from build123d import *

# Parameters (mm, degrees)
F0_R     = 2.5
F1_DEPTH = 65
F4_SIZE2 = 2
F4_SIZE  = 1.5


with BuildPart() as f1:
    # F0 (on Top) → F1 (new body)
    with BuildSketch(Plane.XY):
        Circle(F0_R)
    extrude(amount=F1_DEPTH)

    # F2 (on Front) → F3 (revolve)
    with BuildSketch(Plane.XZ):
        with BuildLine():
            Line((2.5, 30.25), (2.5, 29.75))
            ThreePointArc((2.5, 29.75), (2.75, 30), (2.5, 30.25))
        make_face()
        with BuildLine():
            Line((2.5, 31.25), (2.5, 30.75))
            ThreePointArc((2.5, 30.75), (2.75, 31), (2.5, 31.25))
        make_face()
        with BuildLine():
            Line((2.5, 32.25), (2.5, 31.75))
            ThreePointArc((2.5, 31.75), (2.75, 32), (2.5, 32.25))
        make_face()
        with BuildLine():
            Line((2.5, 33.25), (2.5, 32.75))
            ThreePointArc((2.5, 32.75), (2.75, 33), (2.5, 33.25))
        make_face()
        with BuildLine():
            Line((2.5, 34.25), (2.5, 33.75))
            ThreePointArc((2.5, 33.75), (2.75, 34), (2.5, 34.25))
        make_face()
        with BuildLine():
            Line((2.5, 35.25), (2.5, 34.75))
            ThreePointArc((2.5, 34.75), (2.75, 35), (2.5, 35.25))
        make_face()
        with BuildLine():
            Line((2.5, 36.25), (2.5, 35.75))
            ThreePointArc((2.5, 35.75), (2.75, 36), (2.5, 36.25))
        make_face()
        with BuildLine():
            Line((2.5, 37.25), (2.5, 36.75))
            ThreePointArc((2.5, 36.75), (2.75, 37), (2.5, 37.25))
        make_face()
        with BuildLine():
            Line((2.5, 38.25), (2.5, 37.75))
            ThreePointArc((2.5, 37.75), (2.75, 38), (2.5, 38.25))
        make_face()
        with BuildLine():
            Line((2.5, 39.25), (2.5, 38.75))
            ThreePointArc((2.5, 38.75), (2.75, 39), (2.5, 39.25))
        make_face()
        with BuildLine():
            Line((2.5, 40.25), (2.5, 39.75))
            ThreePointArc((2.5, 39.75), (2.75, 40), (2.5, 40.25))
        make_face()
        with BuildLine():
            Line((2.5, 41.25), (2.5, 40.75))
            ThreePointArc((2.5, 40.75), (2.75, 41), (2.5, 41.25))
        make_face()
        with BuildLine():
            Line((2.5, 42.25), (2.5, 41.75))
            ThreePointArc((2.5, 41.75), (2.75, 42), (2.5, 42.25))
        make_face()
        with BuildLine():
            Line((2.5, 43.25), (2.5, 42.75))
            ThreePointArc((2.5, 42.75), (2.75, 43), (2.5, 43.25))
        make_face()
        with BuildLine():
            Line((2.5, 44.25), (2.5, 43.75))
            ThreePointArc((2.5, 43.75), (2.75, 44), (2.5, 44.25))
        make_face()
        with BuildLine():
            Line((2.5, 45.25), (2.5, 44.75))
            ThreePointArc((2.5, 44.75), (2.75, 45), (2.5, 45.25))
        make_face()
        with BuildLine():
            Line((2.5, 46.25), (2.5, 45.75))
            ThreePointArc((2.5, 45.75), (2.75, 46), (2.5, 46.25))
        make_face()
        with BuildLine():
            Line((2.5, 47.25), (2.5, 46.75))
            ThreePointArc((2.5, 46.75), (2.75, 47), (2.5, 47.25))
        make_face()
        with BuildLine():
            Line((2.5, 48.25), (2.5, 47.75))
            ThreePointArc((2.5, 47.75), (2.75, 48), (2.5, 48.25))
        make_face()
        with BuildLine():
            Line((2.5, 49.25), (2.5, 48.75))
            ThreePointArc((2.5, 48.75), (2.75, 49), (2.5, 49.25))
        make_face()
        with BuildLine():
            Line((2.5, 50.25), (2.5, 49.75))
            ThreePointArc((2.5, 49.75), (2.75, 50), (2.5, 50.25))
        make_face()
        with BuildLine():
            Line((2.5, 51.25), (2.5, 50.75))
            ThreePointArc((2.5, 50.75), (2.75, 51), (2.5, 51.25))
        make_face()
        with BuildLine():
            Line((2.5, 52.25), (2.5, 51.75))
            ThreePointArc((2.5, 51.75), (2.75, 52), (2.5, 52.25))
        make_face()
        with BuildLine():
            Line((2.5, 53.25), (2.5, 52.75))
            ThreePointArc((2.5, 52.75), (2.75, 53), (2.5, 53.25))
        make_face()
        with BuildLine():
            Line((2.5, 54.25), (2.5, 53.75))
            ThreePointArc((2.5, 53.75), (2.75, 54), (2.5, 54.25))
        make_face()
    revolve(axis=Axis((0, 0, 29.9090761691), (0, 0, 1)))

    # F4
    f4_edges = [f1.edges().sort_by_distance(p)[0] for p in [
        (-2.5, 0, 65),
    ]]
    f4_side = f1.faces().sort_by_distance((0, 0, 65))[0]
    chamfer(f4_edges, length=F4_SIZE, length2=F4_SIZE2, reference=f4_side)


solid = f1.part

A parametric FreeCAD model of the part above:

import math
import FreeCAD as App
import Part
import Sketcher
from FreeCAD import Vector
Q = App.Units.Quantity


def edges_at(feature, points):
    """Names of the edges that pass closest to the given points."""
    edges = feature.Shape.Edges
    near = lambda p: min(range(len(edges)), key=lambda i: edges[i].distToShape(Part.Vertex(*p))[0])
    return sorted({f"Edge{near(p) + 1}" for p in points})

doc = App.newDocument("Part")
body = doc.addObject("PartDesign::Body", "Body")

sketch1 = body.newObject("Sketcher::SketchObject", "Sketch")
sketch1.AttachmentSupport = (doc.getObject("XY_Plane"), [""])
sketch1.MapMode = "FlatFace"
sketch1.addGeometry(Part.Circle(Vector(0, 0, 0), Vector(0, 0, 1), 2.5), False)
sketch1.addConstraint([
    Sketcher.Constraint("Coincident", 0, 3, -1, 1),
    Sketcher.Constraint("Diameter", 0, Q("5 mm")),
])
pad1 = body.newObject("PartDesign::Pad", "Pad")
pad1.Profile = sketch1
pad1.Length = 65

sketch2 = body.newObject("Sketcher::SketchObject", "Sketch001")
sketch2.AttachmentSupport = (doc.getObject("XZ_Plane"), [""])
sketch2.MapMode = "FlatFace"
sketch2.addGeometry([
    Part.LineSegment(Vector(2.5, 30.25, 0), Vector(2.5, 29.75, 0)),
    Part.ArcOfCircle(Part.Circle(Vector(2.5, 30, 0), Vector(0, 0, 1), 0.25), math.radians(-90), math.radians(90)),
    Part.LineSegment(Vector(2.5, 31.25, 0), Vector(2.5, 30.75, 0)),
    Part.ArcOfCircle(Part.Circle(Vector(2.5, 31, 0), Vector(0, 0, 1), 0.25), math.radians(-90), math.radians(90)),
    Part.LineSegment(Vector(2.5, 32.25, 0), Vector(2.5, 31.75, 0)),
    Part.ArcOfCircle(Part.Circle(Vector(2.5, 32, 0), Vector(0, 0, 1), 0.25), math.radians(-90), math.radians(90)),
    Part.LineSegment(Vector(2.5, 33.25, 0), Vector(2.5, 32.75, 0)),
    Part.ArcOfCircle(Part.Circle(Vector(2.5, 33, 0), Vector(0, 0, 1), 0.25), math.radians(-90), math.radians(90)),
    Part.LineSegment(Vector(2.5, 34.25, 0), Vector(2.5, 33.75, 0)),
    Part.ArcOfCircle(Part.Circle(Vector(2.5, 34, 0), Vector(0, 0, 1), 0.25), math.radians(-90), math.radians(90)),
    Part.LineSegment(Vector(2.5, 35.25, 0), Vector(2.5, 34.75, 0)),
    Part.ArcOfCircle(Part.Circle(Vector(2.5, 35, 0), Vector(0, 0, 1), 0.25), math.radians(-90), math.radians(90)),
    Part.LineSegment(Vector(2.5, 36.25, 0), Vector(2.5, 35.75, 0)),
    Part.ArcOfCircle(Part.Circle(Vector(2.5, 36, 0), Vector(0, 0, 1), 0.25), math.radians(-90), math.radians(90)),
    Part.LineSegment(Vector(2.5, 37.25, 0), Vector(2.5, 36.75, 0)),
    Part.ArcOfCircle(Part.Circle(Vector(2.5, 37, 0), Vector(0, 0, 1), 0.25), math.radians(-90), math.radians(90)),
    Part.LineSegment(Vector(2.5, 38.25, 0), Vector(2.5, 37.75, 0)),
    Part.ArcOfCircle(Part.Circle(Vector(2.5, 38, 0), Vector(0, 0, 1), 0.25), math.radians(-90), math.radians(90)),
    Part.LineSegment(Vector(2.5, 39.25, 0), Vector(2.5, 38.75, 0)),
    Part.ArcOfCircle(Part.Circle(Vector(2.5, 39, 0), Vector(0, 0, 1), 0.25), math.radians(-90), math.radians(90)),
    Part.LineSegment(Vector(2.5, 40.25, 0), Vector(2.5, 39.75, 0)),
    Part.ArcOfCircle(Part.Circle(Vector(2.5, 40, 0), Vector(0, 0, 1), 0.25), math.radians(-90), math.radians(90)),
    Part.LineSegment(Vector(2.5, 41.25, 0), Vector(2.5, 40.75, 0)),
    Part.ArcOfCircle(Part.Circle(Vector(2.5, 41, 0), Vector(0, 0, 1), 0.25), math.radians(-90), math.radians(90)),
    Part.LineSegment(Vector(2.5, 42.25, 0), Vector(2.5, 41.75, 0)),
    Part.ArcOfCircle(Part.Circle(Vector(2.5, 42, 0), Vector(0, 0, 1), 0.25), math.radians(-90), math.radians(90)),
    Part.LineSegment(Vector(2.5, 43.25, 0), Vector(2.5, 42.75, 0)),
    Part.ArcOfCircle(Part.Circle(Vector(2.5, 43, 0), Vector(0, 0, 1), 0.25), math.radians(-90), math.radians(90)),
    Part.LineSegment(Vector(2.5, 44.25, 0), Vector(2.5, 43.75, 0)),
    Part.ArcOfCircle(Part.Circle(Vector(2.5, 44, 0), Vector(0, 0, 1), 0.25), math.radians(-90), math.radians(90)),
    Part.LineSegment(Vector(2.5, 45.25, 0), Vector(2.5, 44.75, 0)),
    Part.ArcOfCircle(Part.Circle(Vector(2.5, 45, 0), Vector(0, 0, 1), 0.25), math.radians(-90), math.radians(90)),
    Part.LineSegment(Vector(2.5, 46.25, 0), Vector(2.5, 45.75, 0)),
    Part.ArcOfCircle(Part.Circle(Vector(2.5, 46, 0), Vector(0, 0, 1), 0.25), math.radians(-90), math.radians(90)),
    Part.LineSegment(Vector(2.5, 47.25, 0), Vector(2.5, 46.75, 0)),
    Part.ArcOfCircle(Part.Circle(Vector(2.5, 47, 0), Vector(0, 0, 1), 0.25), math.radians(-90), math.radians(90)),
    Part.LineSegment(Vector(2.5, 48.25, 0), Vector(2.5, 47.75, 0)),
    Part.ArcOfCircle(Part.Circle(Vector(2.5, 48, 0), Vector(0, 0, 1), 0.25), math.radians(-90), math.radians(90)),
    Part.LineSegment(Vector(2.5, 49.25, 0), Vector(2.5, 48.75, 0)),
    Part.ArcOfCircle(Part.Circle(Vector(2.5, 49, 0), Vector(0, 0, 1), 0.25), math.radians(-90), math.radians(90)),
    Part.LineSegment(Vector(2.5, 50.25, 0), Vector(2.5, 49.75, 0)),
    Part.ArcOfCircle(Part.Circle(Vector(2.5, 50, 0), Vector(0, 0, 1), 0.25), math.radians(-90), math.radians(90)),
    Part.LineSegment(Vector(2.5, 51.25, 0), Vector(2.5, 50.75, 0)),
    Part.ArcOfCircle(Part.Circle(Vector(2.5, 51, 0), Vector(0, 0, 1), 0.25), math.radians(-90), math.radians(90)),
    Part.LineSegment(Vector(2.5, 52.25, 0), Vector(2.5, 51.75, 0)),
    Part.ArcOfCircle(Part.Circle(Vector(2.5, 52, 0), Vector(0, 0, 1), 0.25), math.radians(-90), math.radians(90)),
    Part.LineSegment(Vector(2.5, 53.25, 0), Vector(2.5, 52.75, 0)),
    Part.ArcOfCircle(Part.Circle(Vector(2.5, 53, 0), Vector(0, 0, 1), 0.25), math.radians(-90), math.radians(90)),
    Part.LineSegment(Vector(2.5, 54.25, 0), Vector(2.5, 53.75, 0)),
    Part.ArcOfCircle(Part.Circle(Vector(2.5, 54, 0), Vector(0, 0, 1), 0.25), math.radians(-90), math.radians(90)),
], False)
sketch2.addConstraint([
    Sketcher.Constraint("Coincident", 0, 1, 1, 2),
    Sketcher.Constraint("Coincident", 1, 1, 0, 2),
    Sketcher.Constraint("Coincident", 2, 1, 3, 2),
    Sketcher.Constraint("Coincident", 3, 1, 2, 2),
    Sketcher.Constraint("Coincident", 4, 1, 5, 2),
    Sketcher.Constraint("Coincident", 5, 1, 4, 2),
    Sketcher.Constraint("Coincident", 6, 1, 7, 2),
    Sketcher.Constraint("Coincident", 7, 1, 6, 2),
    Sketcher.Constraint("Coincident", 8, 1, 9, 2),
    Sketcher.Constraint("Coincident", 9, 1, 8, 2),
    Sketcher.Constraint("Coincident", 10, 1, 11, 2),
    Sketcher.Constraint("Coincident", 11, 1, 10, 2),
    Sketcher.Constraint("Coincident", 12, 1, 13, 2),
    Sketcher.Constraint("Coincident", 13, 1, 12, 2),
    Sketcher.Constraint("Coincident", 14, 1, 15, 2),
    Sketcher.Constraint("Coincident", 15, 1, 14, 2),
    Sketcher.Constraint("Coincident", 16, 1, 17, 2),
    Sketcher.Constraint("Coincident", 17, 1, 16, 2),
    Sketcher.Constraint("Coincident", 18, 1, 19, 2),
    Sketcher.Constraint("Coincident", 19, 1, 18, 2),
    Sketcher.Constraint("Coincident", 20, 1, 21, 2),
    Sketcher.Constraint("Coincident", 21, 1, 20, 2),
    Sketcher.Constraint("Coincident", 22, 1, 23, 2),
    Sketcher.Constraint("Coincident", 23, 1, 22, 2),
    Sketcher.Constraint("Coincident", 24, 1, 25, 2),
    Sketcher.Constraint("Coincident", 25, 1, 24, 2),
    Sketcher.Constraint("Coincident", 26, 1, 27, 2),
    Sketcher.Constraint("Coincident", 27, 1, 26, 2),
    Sketcher.Constraint("Coincident", 28, 1, 29, 2),
    Sketcher.Constraint("Coincident", 29, 1, 28, 2),
    Sketcher.Constraint("Coincident", 30, 1, 31, 2),
    Sketcher.Constraint("Coincident", 31, 1, 30, 2),
    Sketcher.Constraint("Coincident", 32, 1, 33, 2),
    Sketcher.Constraint("Coincident", 33, 1, 32, 2),
    Sketcher.Constraint("Coincident", 34, 1, 35, 2),
    Sketcher.Constraint("Coincident", 35, 1, 34, 2),
    Sketcher.Constraint("Coincident", 36, 1, 37, 2),
    Sketcher.Constraint("Coincident", 37, 1, 36, 2),
    Sketcher.Constraint("Coincident", 38, 1, 39, 2),
    Sketcher.Constraint("Coincident", 39, 1, 38, 2),
    Sketcher.Constraint("Coincident", 40, 1, 41, 2),
    Sketcher.Constraint("Coincident", 41, 1, 40, 2),
    Sketcher.Constraint("Coincident", 42, 1, 43, 2),
    Sketcher.Constraint("Coincident", 43, 1, 42, 2),
    Sketcher.Constraint("Coincident", 44, 1, 45, 2),
    Sketcher.Constraint("Coincident", 45, 1, 44, 2),
    Sketcher.Constraint("Coincident", 46, 1, 47, 2),
    Sketcher.Constraint("Coincident", 47, 1, 46, 2),
    Sketcher.Constraint("Coincident", 48, 1, 49, 2),
    Sketcher.Constraint("Coincident", 49, 1, 48, 2),
    Sketcher.Constraint("Vertical", 0),
    Sketcher.Constraint("Vertical", 2),
    Sketcher.Constraint("Vertical", 4),
    Sketcher.Constraint("Vertical", 6),
    Sketcher.Constraint("Vertical", 8),
    Sketcher.Constraint("Vertical", 10),
    Sketcher.Constraint("Vertical", 12),
    Sketcher.Constraint("Vertical", 14),
    Sketcher.Constraint("Vertical", 16),
    Sketcher.Constraint("Vertical", 18),
    Sketcher.Constraint("Vertical", 20),
    Sketcher.Constraint("Vertical", 22),
    Sketcher.Constraint("Vertical", 24),
    Sketcher.Constraint("Vertical", 26),
    Sketcher.Constraint("Vertical", 28),
    Sketcher.Constraint("Vertical", 30),
    Sketcher.Constraint("Vertical", 32),
    Sketcher.Constraint("Vertical", 34),
    Sketcher.Constraint("Vertical", 36),
    Sketcher.Constraint("Vertical", 38),
    Sketcher.Constraint("Vertical", 40),
    Sketcher.Constraint("Vertical", 42),
    Sketcher.Constraint("Vertical", 44),
    Sketcher.Constraint("Vertical", 46),
    Sketcher.Constraint("Vertical", 48),
    Sketcher.Constraint("Equal", 1, 3),
    Sketcher.Constraint("Equal", 3, 5),
    Sketcher.Constraint("Equal", 5, 7),
    Sketcher.Constraint("Equal", 7, 9),
    Sketcher.Constraint("Equal", 9, 11),
    Sketcher.Constraint("Equal", 11, 13),
    Sketcher.Constraint("Equal", 13, 15),
    Sketcher.Constraint("Equal", 15, 17),
    Sketcher.Constraint("Equal", 17, 19),
    Sketcher.Constraint("Equal", 19, 21),
    Sketcher.Constraint("Equal", 21, 23),
    Sketcher.Constraint("Equal", 23, 25),
    Sketcher.Constraint("Equal", 25, 27),
    Sketcher.Constraint("Equal", 27, 29),
    Sketcher.Constraint("Equal", 29, 31),
    Sketcher.Constraint("Equal", 31, 33),
    Sketcher.Constraint("Equal", 33, 35),
    Sketcher.Constraint("Equal", 35, 37),
    Sketcher.Constraint("Equal", 37, 39),
    Sketcher.Constraint("Equal", 39, 41),
    Sketcher.Constraint("Equal", 41, 43),
    Sketcher.Constraint("Equal", 43, 45),
    Sketcher.Constraint("Equal", 45, 47),
    Sketcher.Constraint("Equal", 47, 49),
    Sketcher.Constraint("Vertical", 1, 3, 3, 3),
    Sketcher.Constraint("Vertical", 3, 3, 5, 3),
    Sketcher.Constraint("Vertical", 5, 3, 7, 3),
    Sketcher.Constraint("Vertical", 7, 3, 9, 3),
    Sketcher.Constraint("Vertical", 9, 3, 11, 3),
    Sketcher.Constraint("Vertical", 11, 3, 13, 3),
    Sketcher.Constraint("Vertical", 13, 3, 15, 3),
    Sketcher.Constraint("Vertical", 15, 3, 17, 3),
    Sketcher.Constraint("Vertical", 17, 3, 19, 3),
    Sketcher.Constraint("Vertical", 19, 3, 21, 3),
    Sketcher.Constraint("Vertical", 21, 3, 23, 3),
    Sketcher.Constraint("Vertical", 23, 3, 25, 3),
    Sketcher.Constraint("Vertical", 25, 3, 27, 3),
    Sketcher.Constraint("Vertical", 27, 3, 29, 3),
    Sketcher.Constraint("Vertical", 29, 3, 31, 3),
    Sketcher.Constraint("Vertical", 31, 3, 33, 3),
    Sketcher.Constraint("Vertical", 33, 3, 35, 3),
    Sketcher.Constraint("Vertical", 35, 3, 37, 3),
    Sketcher.Constraint("Vertical", 37, 3, 39, 3),
    Sketcher.Constraint("Vertical", 39, 3, 41, 3),
    Sketcher.Constraint("Vertical", 41, 3, 43, 3),
    Sketcher.Constraint("Vertical", 43, 3, 45, 3),
    Sketcher.Constraint("Vertical", 45, 3, 47, 3),
    Sketcher.Constraint("Vertical", 47, 3, 49, 3),
    Sketcher.Constraint("Vertical", 49, 3, 0, 1),
    Sketcher.Constraint("Vertical", 1, 1, 2, 1),
    Sketcher.Constraint("Vertical", 3, 1, 4, 1),
    Sketcher.Constraint("Vertical", 5, 1, 6, 1),
    Sketcher.Constraint("Vertical", 7, 1, 8, 1),
    Sketcher.Constraint("Vertical", 9, 1, 10, 1),
    Sketcher.Constraint("Vertical", 11, 1, 12, 1),
    Sketcher.Constraint("Vertical", 13, 1, 14, 1),
    Sketcher.Constraint("Vertical", 15, 1, 16, 1),
    Sketcher.Constraint("Vertical", 17, 1, 18, 1),
    Sketcher.Constraint("Vertical", 19, 1, 20, 1),
    Sketcher.Constraint("Vertical", 21, 1, 22, 1),
    Sketcher.Constraint("Vertical", 23, 1, 24, 1),
    Sketcher.Constraint("Vertical", 25, 1, 26, 1),
    Sketcher.Constraint("Vertical", 27, 1, 28, 1),
    Sketcher.Constraint("Vertical", 29, 1, 30, 1),
    Sketcher.Constraint("Vertical", 31, 1, 32, 1),
    Sketcher.Constraint("Vertical", 33, 1, 34, 1),
    Sketcher.Constraint("Vertical", 35, 1, 36, 1),
    Sketcher.Constraint("Vertical", 37, 1, 38, 1),
    Sketcher.Constraint("Vertical", 39, 1, 40, 1),
    Sketcher.Constraint("Vertical", 41, 1, 42, 1),
    Sketcher.Constraint("Vertical", 43, 1, 44, 1),
    Sketcher.Constraint("Vertical", 45, 1, 46, 1),
    Sketcher.Constraint("Vertical", 47, 1, 48, 1),
    Sketcher.Constraint("Radius", 1, Q("0.25 mm")),
    Sketcher.Constraint("DistanceY", -1, 1, 1, 3, Q("30 mm")),
    Sketcher.Constraint("DistanceY", -1, 1, 3, 3, Q("31 mm")),
    Sketcher.Constraint("DistanceY", -1, 1, 5, 3, Q("32 mm")),
    Sketcher.Constraint("DistanceY", -1, 1, 7, 3, Q("33 mm")),
    Sketcher.Constraint("DistanceY", -1, 1, 9, 3, Q("34 mm")),
    Sketcher.Constraint("DistanceY", -1, 1, 11, 3, Q("35 mm")),
    Sketcher.Constraint("DistanceY", -1, 1, 13, 3, Q("36 mm")),
    Sketcher.Constraint("DistanceY", -1, 1, 15, 3, Q("37 mm")),
    Sketcher.Constraint("DistanceY", -1, 1, 17, 3, Q("38 mm")),
    Sketcher.Constraint("DistanceY", -1, 1, 19, 3, Q("39 mm")),
    Sketcher.Constraint("DistanceY", -1, 1, 21, 3, Q("40 mm")),
    Sketcher.Constraint("DistanceY", -1, 1, 23, 3, Q("41 mm")),
    Sketcher.Constraint("DistanceY", -1, 1, 25, 3, Q("42 mm")),
    Sketcher.Constraint("DistanceY", -1, 1, 27, 3, Q("43 mm")),
    Sketcher.Constraint("DistanceY", -1, 1, 29, 3, Q("44 mm")),
    Sketcher.Constraint("DistanceY", -1, 1, 31, 3, Q("45 mm")),
    Sketcher.Constraint("DistanceY", -1, 1, 33, 3, Q("46 mm")),
    Sketcher.Constraint("DistanceY", -1, 1, 35, 3, Q("47 mm")),
    Sketcher.Constraint("DistanceY", -1, 1, 37, 3, Q("48 mm")),
    Sketcher.Constraint("DistanceY", -1, 1, 39, 3, Q("49 mm")),
    Sketcher.Constraint("DistanceY", -1, 1, 41, 3, Q("50 mm")),
    Sketcher.Constraint("DistanceY", -1, 1, 43, 3, Q("51 mm")),
    Sketcher.Constraint("DistanceY", -1, 1, 45, 3, Q("52 mm")),
    Sketcher.Constraint("DistanceY", -1, 1, 47, 3, Q("53 mm")),
    Sketcher.Constraint("DistanceY", -1, 1, 49, 3, Q("54 mm")),
    Sketcher.Constraint("DistanceX", -1, 1, 1, 3, Q("2.5 mm")),
])
revolution = body.newObject("PartDesign::Revolution", "Revolution")
revolution.Profile = sketch2
revolution.ReferenceAxis = (sketch2, ["V_Axis"])
revolution.Angle = 360
doc.recompute()

chamfer = body.newObject("PartDesign::Chamfer", "Chamfer")
chamfer.Base = (revolution, edges_at(revolution, [(-2.5, 0, 65)]))
chamfer.ChamferType = "Two distances"
chamfer.Size = 1.5
chamfer.Size2 = 2
chamfer.FlipDirection = True

doc.recompute()
